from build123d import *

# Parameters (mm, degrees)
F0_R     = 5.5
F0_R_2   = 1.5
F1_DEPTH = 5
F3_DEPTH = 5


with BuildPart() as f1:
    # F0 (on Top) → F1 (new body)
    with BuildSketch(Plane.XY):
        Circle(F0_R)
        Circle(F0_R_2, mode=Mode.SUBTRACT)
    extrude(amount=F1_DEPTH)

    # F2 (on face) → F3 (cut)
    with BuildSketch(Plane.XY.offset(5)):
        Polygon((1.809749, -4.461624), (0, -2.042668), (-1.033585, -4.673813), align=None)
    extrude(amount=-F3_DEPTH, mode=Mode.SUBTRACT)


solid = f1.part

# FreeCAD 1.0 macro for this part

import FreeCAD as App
import Part
import Sketcher

V = App.Vector

doc = App.newDocument("Part")
body = doc.addObject("PartDesign::Body", "Body")

# Sketch on XY plane
sketch1 = body.newObject("Sketcher::SketchObject", "Sketch")
sketch1.AttachmentSupport = (doc.getObject("XY_Plane"), [""])
sketch1.MapMode = "FlatFace"
sketch1.addGeometry(Part.Circle(V(0, 0, 0), V(0, 0, 1), 5.5), False)
sketch1.addGeometry(Part.Circle(V(0, 0, 0), V(0, 0, 1), 1.5), False)
sketch1.addConstraint(Sketcher.Constraint("Coincident", 0, 3, -1, 1))
sketch1.addConstraint(Sketcher.Constraint("Coincident", 1, 3, -1, 1))
sketch1.addConstraint(Sketcher.Constraint("Diameter", 0, 11.0))
sketch1.addConstraint(Sketcher.Constraint("Diameter", 1, 3.0))
pad1 = body.newObject("PartDesign::Pad", "Pad")
pad1.Profile = sketch1
pad1.Length = 5

# Sketch on XY plane
sketch2 = body.newObject("Sketcher::SketchObject", "Sketch001")
sketch2.AttachmentSupport = (doc.getObject("XY_Plane"), [""])
sketch2.MapMode = "FlatFace"
sketch2.AttachmentOffset = App.Placement(V(0, 0, 5), App.Rotation())
sketch2.addGeometry(Part.LineSegment(V(1.809749, -4.461624, 0), V(0, -2.042668, 0)), False)
sketch2.addGeometry(Part.LineSegment(V(0, -2.042668, 0), V(-1.033585, -4.673813, 0)), False)
sketch2.addGeometry(Part.LineSegment(V(-1.033585, -4.673813, 0), V(1.809749, -4.461624, 0)), False)
sketch2.addConstraint(Sketcher.Constraint("Coincident", 0, 2, 1, 1))
sketch2.addConstraint(Sketcher.Constraint("Coincident", 1, 2, 2, 1))
sketch2.addConstraint(Sketcher.Constraint("Coincident", 2, 2, 0, 1))
sketch2.addConstraint(Sketcher.Constraint("PointOnObject", 0, 2, -2))
sketch2.addConstraint(Sketcher.Constraint("Distance", 2, 2.851241))
sketch2.addConstraint(Sketcher.Constraint("DistanceX", -1, 1, 2, 2, 1.809749))
sketch2.addConstraint(Sketcher.Constraint("DistanceY", 1, 2, 2, 2, 0.212189))
sketch2.addConstraint(Sketcher.Constraint("Distance", 0, 3.021016))
sketch2.addConstraint(Sketcher.Constraint("DistanceY", 0, 2, -1, 1, 2.042668))
pocket1 = body.newObject("PartDesign::Pocket", "Pocket")
pocket1.Profile = sketch2
pocket1.Length = 5

doc.recompute()
